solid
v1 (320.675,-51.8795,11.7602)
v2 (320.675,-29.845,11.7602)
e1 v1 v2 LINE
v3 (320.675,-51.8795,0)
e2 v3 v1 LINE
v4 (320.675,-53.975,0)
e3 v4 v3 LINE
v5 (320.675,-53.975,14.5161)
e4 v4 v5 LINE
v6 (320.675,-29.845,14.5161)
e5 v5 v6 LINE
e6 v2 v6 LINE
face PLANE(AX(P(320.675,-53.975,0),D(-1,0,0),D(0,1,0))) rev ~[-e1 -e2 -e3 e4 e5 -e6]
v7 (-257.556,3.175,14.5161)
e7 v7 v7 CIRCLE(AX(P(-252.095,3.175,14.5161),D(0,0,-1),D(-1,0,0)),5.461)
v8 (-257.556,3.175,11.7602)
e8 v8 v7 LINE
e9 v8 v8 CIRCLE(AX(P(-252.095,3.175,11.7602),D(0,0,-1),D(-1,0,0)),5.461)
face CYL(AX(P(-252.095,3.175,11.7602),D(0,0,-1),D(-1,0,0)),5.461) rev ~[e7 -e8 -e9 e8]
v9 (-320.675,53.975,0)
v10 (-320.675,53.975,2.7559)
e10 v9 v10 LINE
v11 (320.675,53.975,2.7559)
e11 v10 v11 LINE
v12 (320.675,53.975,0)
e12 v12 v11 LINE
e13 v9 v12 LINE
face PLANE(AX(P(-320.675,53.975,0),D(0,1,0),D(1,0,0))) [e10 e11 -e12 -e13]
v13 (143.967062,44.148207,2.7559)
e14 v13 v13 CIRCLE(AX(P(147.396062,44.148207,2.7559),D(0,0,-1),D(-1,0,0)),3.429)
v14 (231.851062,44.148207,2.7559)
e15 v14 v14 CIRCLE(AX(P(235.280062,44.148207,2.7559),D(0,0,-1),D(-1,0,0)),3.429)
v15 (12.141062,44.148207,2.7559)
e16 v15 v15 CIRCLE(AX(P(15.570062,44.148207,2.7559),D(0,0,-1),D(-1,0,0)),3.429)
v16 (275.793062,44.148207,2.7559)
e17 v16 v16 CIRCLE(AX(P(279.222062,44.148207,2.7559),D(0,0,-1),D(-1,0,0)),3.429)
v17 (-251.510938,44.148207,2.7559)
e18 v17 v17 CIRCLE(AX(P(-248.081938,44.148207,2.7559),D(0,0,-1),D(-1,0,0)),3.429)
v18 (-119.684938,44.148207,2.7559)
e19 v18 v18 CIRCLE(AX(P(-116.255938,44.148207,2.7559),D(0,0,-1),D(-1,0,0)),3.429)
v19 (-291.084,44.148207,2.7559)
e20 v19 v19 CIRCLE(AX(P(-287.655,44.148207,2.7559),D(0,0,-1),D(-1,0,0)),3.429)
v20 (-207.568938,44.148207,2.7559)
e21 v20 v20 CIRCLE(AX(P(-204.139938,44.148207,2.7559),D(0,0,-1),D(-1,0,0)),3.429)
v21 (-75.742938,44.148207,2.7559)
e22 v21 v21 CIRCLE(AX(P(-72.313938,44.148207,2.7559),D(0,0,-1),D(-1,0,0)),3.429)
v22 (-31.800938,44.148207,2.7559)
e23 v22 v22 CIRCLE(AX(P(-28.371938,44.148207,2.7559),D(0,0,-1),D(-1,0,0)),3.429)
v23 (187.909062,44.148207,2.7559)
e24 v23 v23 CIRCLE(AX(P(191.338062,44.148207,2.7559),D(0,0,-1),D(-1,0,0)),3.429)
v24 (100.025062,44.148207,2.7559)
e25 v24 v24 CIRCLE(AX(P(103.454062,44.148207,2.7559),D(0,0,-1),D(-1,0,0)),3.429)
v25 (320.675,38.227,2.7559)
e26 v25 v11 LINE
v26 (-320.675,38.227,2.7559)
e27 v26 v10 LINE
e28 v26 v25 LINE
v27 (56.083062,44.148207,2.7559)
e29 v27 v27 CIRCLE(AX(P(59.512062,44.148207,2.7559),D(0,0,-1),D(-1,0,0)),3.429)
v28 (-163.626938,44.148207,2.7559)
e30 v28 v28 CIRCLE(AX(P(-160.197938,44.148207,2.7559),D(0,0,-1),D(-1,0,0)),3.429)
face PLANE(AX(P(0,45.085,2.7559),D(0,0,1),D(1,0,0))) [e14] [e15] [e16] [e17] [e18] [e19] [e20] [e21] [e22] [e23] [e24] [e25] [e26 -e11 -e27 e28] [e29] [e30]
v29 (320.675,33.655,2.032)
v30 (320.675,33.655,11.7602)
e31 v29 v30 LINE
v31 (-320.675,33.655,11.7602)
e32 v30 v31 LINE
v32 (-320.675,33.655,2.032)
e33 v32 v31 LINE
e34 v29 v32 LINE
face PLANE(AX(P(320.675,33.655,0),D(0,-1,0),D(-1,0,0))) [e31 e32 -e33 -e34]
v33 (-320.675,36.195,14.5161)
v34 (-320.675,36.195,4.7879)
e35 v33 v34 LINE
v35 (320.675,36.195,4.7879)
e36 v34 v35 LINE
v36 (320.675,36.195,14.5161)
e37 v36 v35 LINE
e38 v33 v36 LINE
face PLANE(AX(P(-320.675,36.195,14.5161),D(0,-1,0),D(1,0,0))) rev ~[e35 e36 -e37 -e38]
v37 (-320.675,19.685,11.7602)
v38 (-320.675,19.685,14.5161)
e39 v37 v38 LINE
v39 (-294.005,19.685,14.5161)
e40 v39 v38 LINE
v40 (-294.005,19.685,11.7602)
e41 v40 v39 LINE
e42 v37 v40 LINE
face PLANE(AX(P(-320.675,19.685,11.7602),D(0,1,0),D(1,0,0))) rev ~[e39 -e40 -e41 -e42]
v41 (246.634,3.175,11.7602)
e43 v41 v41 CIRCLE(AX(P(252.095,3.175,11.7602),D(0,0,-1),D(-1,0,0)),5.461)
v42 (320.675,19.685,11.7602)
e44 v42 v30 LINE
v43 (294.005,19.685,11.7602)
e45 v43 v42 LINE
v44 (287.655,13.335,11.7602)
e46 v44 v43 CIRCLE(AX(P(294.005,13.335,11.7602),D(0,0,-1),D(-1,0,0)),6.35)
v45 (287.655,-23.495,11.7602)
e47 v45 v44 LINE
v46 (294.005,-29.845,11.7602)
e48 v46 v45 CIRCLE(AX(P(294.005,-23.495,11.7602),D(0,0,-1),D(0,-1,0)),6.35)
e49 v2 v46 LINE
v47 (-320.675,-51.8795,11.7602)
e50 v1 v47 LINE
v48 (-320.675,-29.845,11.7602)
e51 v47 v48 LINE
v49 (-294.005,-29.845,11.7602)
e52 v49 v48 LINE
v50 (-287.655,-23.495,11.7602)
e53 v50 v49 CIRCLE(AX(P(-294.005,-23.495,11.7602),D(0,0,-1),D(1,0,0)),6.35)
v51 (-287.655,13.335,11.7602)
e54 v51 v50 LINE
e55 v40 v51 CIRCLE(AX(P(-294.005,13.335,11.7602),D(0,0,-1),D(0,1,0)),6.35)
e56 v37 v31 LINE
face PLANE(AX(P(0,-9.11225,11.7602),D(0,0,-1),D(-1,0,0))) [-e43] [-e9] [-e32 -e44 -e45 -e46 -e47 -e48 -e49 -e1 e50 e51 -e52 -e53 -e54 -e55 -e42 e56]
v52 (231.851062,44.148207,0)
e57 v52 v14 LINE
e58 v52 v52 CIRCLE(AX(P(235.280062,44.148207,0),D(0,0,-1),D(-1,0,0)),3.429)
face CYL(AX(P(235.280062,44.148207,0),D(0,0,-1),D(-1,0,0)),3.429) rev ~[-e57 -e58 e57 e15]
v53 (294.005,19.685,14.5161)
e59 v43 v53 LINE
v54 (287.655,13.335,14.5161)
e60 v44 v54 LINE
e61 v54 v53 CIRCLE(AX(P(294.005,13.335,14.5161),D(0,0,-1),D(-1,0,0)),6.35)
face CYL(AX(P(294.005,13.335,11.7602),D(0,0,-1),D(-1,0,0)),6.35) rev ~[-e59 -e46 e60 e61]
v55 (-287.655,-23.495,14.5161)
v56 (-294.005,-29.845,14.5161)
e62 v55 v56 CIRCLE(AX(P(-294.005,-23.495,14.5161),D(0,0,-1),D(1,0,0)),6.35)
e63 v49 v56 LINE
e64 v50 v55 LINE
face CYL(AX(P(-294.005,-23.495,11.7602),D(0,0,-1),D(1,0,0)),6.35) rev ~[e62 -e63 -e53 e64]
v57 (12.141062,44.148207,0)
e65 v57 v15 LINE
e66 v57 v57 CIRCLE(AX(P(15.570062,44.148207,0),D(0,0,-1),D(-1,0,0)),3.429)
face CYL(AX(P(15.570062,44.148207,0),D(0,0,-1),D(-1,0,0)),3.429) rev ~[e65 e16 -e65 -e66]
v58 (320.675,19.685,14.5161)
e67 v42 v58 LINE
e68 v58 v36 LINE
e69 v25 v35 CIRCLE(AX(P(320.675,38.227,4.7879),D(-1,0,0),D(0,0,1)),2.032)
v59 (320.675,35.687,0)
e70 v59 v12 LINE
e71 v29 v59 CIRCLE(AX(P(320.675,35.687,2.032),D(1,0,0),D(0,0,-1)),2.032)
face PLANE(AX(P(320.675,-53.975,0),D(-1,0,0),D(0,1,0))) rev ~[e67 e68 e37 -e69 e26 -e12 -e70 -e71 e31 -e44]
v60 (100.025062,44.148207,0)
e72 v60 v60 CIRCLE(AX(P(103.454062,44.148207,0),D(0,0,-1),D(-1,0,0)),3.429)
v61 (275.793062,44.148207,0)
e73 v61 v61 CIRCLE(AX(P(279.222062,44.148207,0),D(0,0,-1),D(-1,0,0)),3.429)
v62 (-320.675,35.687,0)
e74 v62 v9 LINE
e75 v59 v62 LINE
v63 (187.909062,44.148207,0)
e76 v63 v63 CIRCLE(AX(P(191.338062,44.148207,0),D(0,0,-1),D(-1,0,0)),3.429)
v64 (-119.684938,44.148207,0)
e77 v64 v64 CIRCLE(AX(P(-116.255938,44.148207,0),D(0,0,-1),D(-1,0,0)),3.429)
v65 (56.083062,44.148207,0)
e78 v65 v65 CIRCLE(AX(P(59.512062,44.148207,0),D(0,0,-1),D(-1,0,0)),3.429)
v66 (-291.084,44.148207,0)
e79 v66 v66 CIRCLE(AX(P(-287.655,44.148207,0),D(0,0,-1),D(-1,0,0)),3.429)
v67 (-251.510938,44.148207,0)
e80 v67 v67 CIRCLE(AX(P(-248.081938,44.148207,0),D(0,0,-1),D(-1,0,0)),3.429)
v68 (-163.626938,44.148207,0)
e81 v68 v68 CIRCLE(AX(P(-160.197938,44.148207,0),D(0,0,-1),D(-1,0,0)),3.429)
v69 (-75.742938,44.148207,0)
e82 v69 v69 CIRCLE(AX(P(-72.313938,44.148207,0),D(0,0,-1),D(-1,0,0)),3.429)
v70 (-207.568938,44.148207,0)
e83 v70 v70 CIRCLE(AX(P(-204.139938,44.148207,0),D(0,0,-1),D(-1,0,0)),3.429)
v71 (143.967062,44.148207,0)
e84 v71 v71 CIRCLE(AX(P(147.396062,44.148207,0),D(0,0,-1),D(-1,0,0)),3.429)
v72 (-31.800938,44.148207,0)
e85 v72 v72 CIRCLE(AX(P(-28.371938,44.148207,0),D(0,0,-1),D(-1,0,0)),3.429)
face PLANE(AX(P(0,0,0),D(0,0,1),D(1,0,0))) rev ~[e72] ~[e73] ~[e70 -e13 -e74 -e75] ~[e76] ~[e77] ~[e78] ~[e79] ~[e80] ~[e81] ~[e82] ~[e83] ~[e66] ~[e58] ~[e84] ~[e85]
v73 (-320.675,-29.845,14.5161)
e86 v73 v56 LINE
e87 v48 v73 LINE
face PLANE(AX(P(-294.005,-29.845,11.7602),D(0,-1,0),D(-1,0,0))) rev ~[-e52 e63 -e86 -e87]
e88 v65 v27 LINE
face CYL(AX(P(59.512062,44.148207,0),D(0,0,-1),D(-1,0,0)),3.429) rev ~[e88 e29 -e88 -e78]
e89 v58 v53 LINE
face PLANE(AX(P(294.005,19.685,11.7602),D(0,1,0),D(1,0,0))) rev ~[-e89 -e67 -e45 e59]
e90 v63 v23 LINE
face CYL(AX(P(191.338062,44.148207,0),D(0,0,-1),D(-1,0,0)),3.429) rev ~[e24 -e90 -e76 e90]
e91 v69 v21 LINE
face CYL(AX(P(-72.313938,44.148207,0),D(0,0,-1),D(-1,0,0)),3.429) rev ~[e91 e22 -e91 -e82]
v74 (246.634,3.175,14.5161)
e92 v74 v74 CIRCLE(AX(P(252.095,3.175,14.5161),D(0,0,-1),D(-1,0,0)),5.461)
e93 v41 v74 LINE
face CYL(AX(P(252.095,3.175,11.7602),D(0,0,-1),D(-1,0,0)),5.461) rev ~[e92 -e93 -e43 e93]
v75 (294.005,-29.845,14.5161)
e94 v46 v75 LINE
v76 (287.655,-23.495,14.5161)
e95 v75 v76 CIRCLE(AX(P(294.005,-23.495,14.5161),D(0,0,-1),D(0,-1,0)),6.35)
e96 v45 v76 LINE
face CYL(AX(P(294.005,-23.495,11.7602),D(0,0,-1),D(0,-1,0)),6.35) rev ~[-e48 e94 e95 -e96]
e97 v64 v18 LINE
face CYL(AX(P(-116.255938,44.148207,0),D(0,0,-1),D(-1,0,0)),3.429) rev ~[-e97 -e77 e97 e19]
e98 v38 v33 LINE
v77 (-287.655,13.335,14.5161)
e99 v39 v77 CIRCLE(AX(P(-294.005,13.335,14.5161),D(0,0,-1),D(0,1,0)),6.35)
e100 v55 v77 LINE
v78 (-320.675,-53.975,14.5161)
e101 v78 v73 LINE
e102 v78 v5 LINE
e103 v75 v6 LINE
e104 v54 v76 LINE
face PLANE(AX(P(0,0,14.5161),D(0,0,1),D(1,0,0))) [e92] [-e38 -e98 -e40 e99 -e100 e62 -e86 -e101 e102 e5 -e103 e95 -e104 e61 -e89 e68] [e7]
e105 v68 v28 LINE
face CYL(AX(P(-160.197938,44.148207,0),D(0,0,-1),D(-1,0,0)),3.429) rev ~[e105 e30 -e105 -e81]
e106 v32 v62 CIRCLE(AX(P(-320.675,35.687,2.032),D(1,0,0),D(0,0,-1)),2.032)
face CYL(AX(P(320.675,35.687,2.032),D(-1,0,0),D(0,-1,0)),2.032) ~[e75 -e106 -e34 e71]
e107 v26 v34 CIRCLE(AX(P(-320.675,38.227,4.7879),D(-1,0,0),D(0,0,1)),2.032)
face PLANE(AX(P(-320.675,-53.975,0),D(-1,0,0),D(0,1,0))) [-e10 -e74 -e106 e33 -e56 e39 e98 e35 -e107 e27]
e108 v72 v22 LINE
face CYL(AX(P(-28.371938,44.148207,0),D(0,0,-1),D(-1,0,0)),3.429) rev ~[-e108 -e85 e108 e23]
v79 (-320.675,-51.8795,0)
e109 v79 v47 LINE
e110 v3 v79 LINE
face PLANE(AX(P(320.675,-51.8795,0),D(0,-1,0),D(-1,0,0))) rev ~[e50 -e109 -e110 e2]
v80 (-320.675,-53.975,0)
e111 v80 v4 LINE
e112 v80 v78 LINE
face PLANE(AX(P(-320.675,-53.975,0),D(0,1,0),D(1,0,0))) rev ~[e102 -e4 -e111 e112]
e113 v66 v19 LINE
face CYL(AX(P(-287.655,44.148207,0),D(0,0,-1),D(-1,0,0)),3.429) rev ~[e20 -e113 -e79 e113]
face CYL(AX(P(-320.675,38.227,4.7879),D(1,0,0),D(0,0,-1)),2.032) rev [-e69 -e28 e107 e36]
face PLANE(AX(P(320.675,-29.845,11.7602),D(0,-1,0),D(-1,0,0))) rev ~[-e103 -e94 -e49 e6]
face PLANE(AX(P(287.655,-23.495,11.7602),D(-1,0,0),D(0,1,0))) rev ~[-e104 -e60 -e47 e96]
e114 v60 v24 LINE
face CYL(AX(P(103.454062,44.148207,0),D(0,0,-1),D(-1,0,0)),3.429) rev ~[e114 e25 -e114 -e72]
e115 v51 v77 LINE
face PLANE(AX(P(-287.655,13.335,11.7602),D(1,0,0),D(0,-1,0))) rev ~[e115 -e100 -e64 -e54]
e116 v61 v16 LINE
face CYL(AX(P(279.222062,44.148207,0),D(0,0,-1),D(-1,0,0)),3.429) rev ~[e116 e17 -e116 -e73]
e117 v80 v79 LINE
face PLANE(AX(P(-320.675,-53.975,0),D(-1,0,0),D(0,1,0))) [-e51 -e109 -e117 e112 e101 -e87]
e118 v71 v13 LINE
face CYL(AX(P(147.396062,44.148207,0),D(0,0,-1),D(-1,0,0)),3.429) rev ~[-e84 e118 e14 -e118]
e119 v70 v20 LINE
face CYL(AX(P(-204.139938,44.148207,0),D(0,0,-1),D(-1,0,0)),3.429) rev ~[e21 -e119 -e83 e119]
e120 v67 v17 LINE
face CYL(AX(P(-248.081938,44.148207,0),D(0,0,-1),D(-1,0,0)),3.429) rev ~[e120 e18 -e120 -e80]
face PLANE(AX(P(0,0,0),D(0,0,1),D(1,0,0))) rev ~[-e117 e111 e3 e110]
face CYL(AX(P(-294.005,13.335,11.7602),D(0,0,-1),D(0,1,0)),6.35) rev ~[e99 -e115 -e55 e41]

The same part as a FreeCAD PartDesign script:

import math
import FreeCAD as App
import Part
import Sketcher

V = App.Vector
Q = App.Units.Quantity


def edges_at(feature, points):
    """Names of the edges that pass closest to the given points."""
    edges = feature.Shape.Edges
    near = lambda p: min(range(len(edges)), key=lambda i: edges[i].distToShape(Part.Vertex(*p))[0])
    return sorted({f"Edge{near(p) + 1}" for p in points})


def add_polygon(sketch, points):
    """Adds a closed chain of lines whose ends are joined by coincident constraints."""
    first, n = sketch.GeometryCount, len(points)
    for a, b in zip(points, points[1:] + points[:1]):
        sketch.addGeometry(Part.LineSegment(App.Vector(*a, 0), App.Vector(*b, 0)), False)
    for i in range(n):
        sketch.addConstraint(Sketcher.Constraint("Coincident", first + i, 2, first + (i + 1) % n, 1))

doc = App.newDocument("Part")
params = doc.addObject("Spreadsheet::Sheet", "Params")
for row, (alias, value) in enumerate([
    ("sketch1_width", "25.25 in"),
    ("sketch1_height", "4.25 in"),
    ("pad1_length", "0.5715 in"),
    ("sketch2_height", "0.7 in"),
    ("sketch2_width", "25.25 in"),
    ("pocket1_length", "0.463 in"),
    ("sketch3_width", "25.25 in"),
    ("pocket2_length", "0.463 in"),
    ("fillet_radius", "0.08 in"),
    ("sketch4_radius", "0.25 in"),
    ("sketch4_width", "1.05 in"),
    ("sketch4_height", "1.95 in"),
    ("sketch5_diameter", "0.27 in"),
    ("pocket4_length", "0.463 in"),
    ("sketch6_diameter", "0.43 in"),
    ("pocket5_length", "0.463 in"),
], start=1):
    params.set(f"A{row}", alias)
    params.set(f"B{row}", "=" + value)
    params.setAlias(f"B{row}", alias)

body = doc.addObject("PartDesign::Body", "Body")

# Sketch on XY plane
sketch1 = body.newObject("Sketcher::SketchObject", "Sketch")
sketch1.AttachmentSupport = (doc.getObject("XY_Plane"), [""])
sketch1.MapMode = "FlatFace"
add_polygon(sketch1, [(-321, 54), (-321, -54), (321, -54), (321, 54)])  # lines 0-3
sketch1.addConstraint([
    Sketcher.Constraint("Vertical", 0),
    Sketcher.Constraint("Horizontal", 1),
    Sketcher.Constraint("Vertical", 2),
    Sketcher.Constraint("Horizontal", 3),
    Sketcher.Constraint("Symmetric", 0, 2, 2, 2, -1, 1),
    Sketcher.Constraint("DistanceX", 1, 1, 1, 2, Q("25.25 in")),
    Sketcher.Constraint("DistanceY", 0, 2, 0, 1, Q("4.25 in")),
])
sketch1.setExpression("Constraints[9]", "Params.sketch1_width")
sketch1.setExpression("Constraints[10]", "Params.sketch1_height")
pad1 = body.newObject("PartDesign::Pad", "Pad")
pad1.Profile = sketch1
pad1.setExpression("Length", "Params.pad1_length")

# Sketch on XY plane
sketch2 = body.newObject("Sketcher::SketchObject", "Sketch001")
sketch2.AttachmentSupport = (doc.getObject("XY_Plane"), [""])
sketch2.MapMode = "FlatFace"
sketch2.AttachmentOffset = App.Placement(V(0, 0, 0.5715 * 25.4), App.Rotation())
add_polygon(sketch2, [(-321, 54), (-321, 36), (321, 36), (321, 54)])  # lines 0-3
sketch2.addConstraint([
    Sketcher.Constraint("Vertical", 0),
    Sketcher.Constraint("Horizontal", 1),
    Sketcher.Constraint("Vertical", 2),
    Sketcher.Constraint("Horizontal", 3),
    Sketcher.Constraint("DistanceY", 0, 2, 0, 1, Q("0.7 in")),
    Sketcher.Constraint("DistanceX", 1, 1, 1, 2, Q("25.25 in")),
    Sketcher.Constraint("DistanceX", 0, 2, -1, 1, Q("12.625 in")),
    Sketcher.Constraint("DistanceY", -1, 1, 0, 2, Q("1.425 in")),
])
sketch2.setExpression("Constraints[8]", "Params.sketch2_height")
sketch2.setExpression("Constraints[9]", "Params.sketch2_width")
pocket1 = body.newObject("PartDesign::Pocket", "Pocket")
pocket1.Profile = sketch2
pocket1.setExpression("Length", "Params.pocket1_length")

# Sketch on XY plane
sketch3 = body.newObject("Sketcher::SketchObject", "Sketch002")
sketch3.AttachmentSupport = (doc.getObject("XY_Plane"), [""])
sketch3.MapMode = "FlatFace"
add_polygon(sketch3, [(321, 34), (321, -52), (-321, -52), (-321, 34)])  # lines 0-3
sketch3.addConstraint([
    Sketcher.Constraint("Vertical", 0),
    Sketcher.Constraint("Horizontal", 1),
    Sketcher.Constraint("Vertical", 2),
    Sketcher.Constraint("Horizontal", 3),
    Sketcher.Constraint("DistanceX", 1, 2, 1, 1, Q("25.25 in")),
    Sketcher.Constraint("DistanceY", 0, 2, 0, 1, Q("3.3675 in")),
    Sketcher.Constraint("DistanceX", -1, 1, 0, 2, Q("12.625 in")),
    Sketcher.Constraint("DistanceY", -1, 1, 2, 2, Q("1.325 in")),
])
sketch3.setExpression("Constraints[8]", "Params.sketch3_width")
pocket2 = body.newObject("PartDesign::Pocket", "Pocket001")
pocket2.Profile = sketch3
pocket2.setExpression("Length", "Params.pocket2_length")
pocket2.Reversed = True
doc.recompute()

fillet = body.newObject("PartDesign::Fillet", "Fillet")
fillet.Base = (pocket2, edges_at(pocket2, [(0, 36.195, 2.756), (0, 33.655, 0)]))
fillet.setExpression("Radius", "Params.fillet_radius")

# Sketch on XY plane
sketch4 = body.newObject("Sketcher::SketchObject", "Sketch003")
sketch4.AttachmentSupport = (doc.getObject("XY_Plane"), [""])
sketch4.MapMode = "FlatFace"
sketch4.AttachmentOffset = App.Placement(V(0, 0, 0.463 * 25.4), App.Rotation())
sketch4.addGeometry([
    Part.LineSegment(V(294, 20, 0), V(321, 20, 0)),  # 0
    Part.LineSegment(V(321, 20, 0), V(321, -30, 0)),  # 1
    Part.LineSegment(V(321, -30, 0), V(294, -30, 0)),  # 2
    Part.ArcOfCircle(Part.Circle(V(294, -23, 0), V(0, 0, 1), 6), math.radians(180), math.radians(270)),  # 3
    Part.LineSegment(V(288, -23, 0), V(288, 13, 0)),  # 4
    Part.ArcOfCircle(Part.Circle(V(294, 13, 0), V(0, 0, 1), 6), math.radians(90), math.radians(180)),  # 5
    Part.LineSegment(V(-294, -30, 0), V(-321, -30, 0)),  # 6
    Part.LineSegment(V(-321, -30, 0), V(-321, 20, 0)),  # 7
    Part.LineSegment(V(-321, 20, 0), V(-294, 20, 0)),  # 8
    Part.ArcOfCircle(Part.Circle(V(-294, 13, 0), V(0, 0, 1), 6), math.radians(0), math.radians(90)),  # 9
    Part.LineSegment(V(-288, 13, 0), V(-288, -23, 0)),  # 10
    Part.ArcOfCircle(Part.Circle(V(-294, -23, 0), V(0, 0, 1), 6), math.radians(-90), math.radians(0)),  # 11
], False)
sketch4.addConstraint([
    Sketcher.Constraint("Coincident", 0, 2, 1, 1),
    Sketcher.Constraint("Coincident", 1, 2, 2, 1),
    Sketcher.Constraint("Tangent", 2, 2, 3, 2),
    Sketcher.Constraint("Tangent", 3, 1, 4, 1),
    Sketcher.Constraint("Tangent", 4, 2, 5, 2),
    Sketcher.Constraint("Tangent", 5, 1, 0, 1),
    Sketcher.Constraint("Coincident", 6, 2, 7, 1),
    Sketcher.Constraint("Coincident", 7, 2, 8, 1),
    Sketcher.Constraint("Tangent", 8, 2, 9, 2),
    Sketcher.Constraint("Tangent", 9, 1, 10, 1),
    Sketcher.Constraint("Tangent", 10, 2, 11, 2),
    Sketcher.Constraint("Tangent", 11, 1, 6, 1),
    Sketcher.Constraint("Horizontal", 0),
    Sketcher.Constraint("Vertical", 1),
    Sketcher.Constraint("Horizontal", 2),
    Sketcher.Constraint("Vertical", 4),
    Sketcher.Constraint("Horizontal", 6),
    Sketcher.Constraint("Vertical", 7),
    Sketcher.Constraint("Horizontal", 8),
    Sketcher.Constraint("Vertical", 10),
    Sketcher.Constraint("Equal", 3, 5),
    Sketcher.Constraint("Equal", 5, 9),
    Sketcher.Constraint("Equal", 9, 11),
    Sketcher.Constraint("Symmetric", 5, 3, 9, 3, -2),
    Sketcher.Constraint("Symmetric", 1, 2, 6, 2, -2),
    Sketcher.Constraint("Radius", 3, Q("0.25 in")),
    Sketcher.Constraint("DistanceX", 0, 1, 0, 2, Q("1.05 in")),
    Sketcher.Constraint("DistanceY", 1, 2, 1, 1, Q("1.95 in")),
    Sketcher.Constraint("DistanceX", 9, 3, 0, 2, Q("24.2 in")),
    Sketcher.Constraint("DistanceY", 3, 3, -1, 1, Q("0.925 in")),
])
sketch4.setExpression("Constraints[25]", "Params.sketch4_radius")
sketch4.setExpression("Constraints[26]", "Params.sketch4_width")
sketch4.setExpression("Constraints[27]", "Params.sketch4_height")
pocket3 = body.newObject("PartDesign::Pocket", "Pocket002")
pocket3.Profile = sketch4
pocket3.Type = "ThroughAll"
pocket3.Reversed = True

# Sketch on XY plane
sketch5 = body.newObject("Sketcher::SketchObject", "Sketch004")
sketch5.AttachmentSupport = (doc.getObject("XY_Plane"), [""])
sketch5.MapMode = "FlatFace"
sketch5.addGeometry([
    Part.Circle(V(279.2, 44.1, 0), V(0, 0, 1), 3.4),  # 0
    Part.Circle(V(235.3, 44.1, 0), V(0, 0, 1), 3.4),  # 1
    Part.Circle(V(191.3, 44.1, 0), V(0, 0, 1), 3.4),  # 2
    Part.Circle(V(147.4, 44.1, 0), V(0, 0, 1), 3.4),  # 3
    Part.Circle(V(103.5, 44.1, 0), V(0, 0, 1), 3.4),  # 4
    Part.Circle(V(59.5, 44.1, 0), V(0, 0, 1), 3.4),  # 5
    Part.Circle(V(15.6, 44.1, 0), V(0, 0, 1), 3.4),  # 6
    Part.Circle(V(-28.4, 44.1, 0), V(0, 0, 1), 3.4),  # 7
    Part.Circle(V(-72.3, 44.1, 0), V(0, 0, 1), 3.4),  # 8
    Part.Circle(V(-116.3, 44.1, 0), V(0, 0, 1), 3.4),  # 9
    Part.Circle(V(-160.2, 44.1, 0), V(0, 0, 1), 3.4),  # 10
    Part.Circle(V(-204.1, 44.1, 0), V(0, 0, 1), 3.4),  # 11
    Part.Circle(V(-248.1, 44.1, 0), V(0, 0, 1), 3.4),  # 12
    Part.Circle(V(-287.7, 44.1, 0), V(0, 0, 1), 3.4),  # 13
], False)
sketch5.addConstraint([
    Sketcher.Constraint("Equal", 0, 1),
    Sketcher.Constraint("Equal", 1, 2),
    Sketcher.Constraint("Equal", 2, 3),
    Sketcher.Constraint("Equal", 3, 4),
    Sketcher.Constraint("Equal", 4, 5),
    Sketcher.Constraint("Equal", 5, 6),
    Sketcher.Constraint("Equal", 6, 7),
    Sketcher.Constraint("Equal", 7, 8),
    Sketcher.Constraint("Equal", 8, 9),
    Sketcher.Constraint("Equal", 9, 10),
    Sketcher.Constraint("Equal", 10, 11),
    Sketcher.Constraint("Equal", 11, 12),
    Sketcher.Constraint("Equal", 12, 13),
    Sketcher.Constraint("Horizontal", 0, 3, 1, 3),
    Sketcher.Constraint("Horizontal", 1, 3, 2, 3),
    Sketcher.Constraint("Horizontal", 2, 3, 3, 3),
    Sketcher.Constraint("Horizontal", 3, 3, 4, 3),
    Sketcher.Constraint("Horizontal", 4, 3, 5, 3),
    Sketcher.Constraint("Horizontal", 5, 3, 6, 3),
    Sketcher.Constraint("Horizontal", 6, 3, 7, 3),
    Sketcher.Constraint("Horizontal", 7, 3, 8, 3),
    Sketcher.Constraint("Horizontal", 8, 3, 9, 3),
    Sketcher.Constraint("Horizontal", 9, 3, 10, 3),
    Sketcher.Constraint("Horizontal", 10, 3, 11, 3),
    Sketcher.Constraint("Horizontal", 11, 3, 12, 3),
    Sketcher.Constraint("Horizontal", 12, 3, 13, 3),
    Sketcher.Constraint("Diameter", 0, Q("0.27 in")),
    Sketcher.Constraint("DistanceX", 1, 3, 0, 3, Q("1.73 in")),
    Sketcher.Constraint("DistanceX", 2, 3, 1, 3, Q("1.73 in")),
    Sketcher.Constraint("DistanceX", 3, 3, 2, 3, Q("1.73 in")),
    Sketcher.Constraint("DistanceX", 4, 3, 3, 3, Q("1.73 in")),
    Sketcher.Constraint("DistanceX", 5, 3, 4, 3, Q("1.73 in")),
    Sketcher.Constraint("DistanceX", 6, 3, 5, 3, Q("1.73 in")),
    Sketcher.Constraint("DistanceX", 7, 3, 6, 3, Q("1.73 in")),
    Sketcher.Constraint("DistanceX", 8, 3, 7, 3, Q("1.73 in")),
    Sketcher.Constraint("DistanceX", 9, 3, 8, 3, Q("1.73 in")),
    Sketcher.Constraint("DistanceX", 10, 3, 9, 3, Q("1.73 in")),
    Sketcher.Constraint("DistanceX", 11, 3, 10, 3, Q("1.73 in")),
    Sketcher.Constraint("DistanceX", 12, 3, 11, 3, Q("1.73 in")),
    Sketcher.Constraint("DistanceX", 13, 3, -1, 1, Q("11.325 in")),
    Sketcher.Constraint("DistanceX", -1, 1, 0, 3, Q("279.222062 mm")),
    Sketcher.Constraint("DistanceY", -1, 1, 0, 3, Q("44.148207 mm")),
])
sketch5.setExpression("Constraints[26]", "Params.sketch5_diameter")
pocket4 = body.newObject("PartDesign::Pocket", "Pocket003")
pocket4.Profile = sketch5
pocket4.setExpression("Length", "Params.pocket4_length")
pocket4.Reversed = True

# Sketch on XY plane
sketch6 = body.newObject("Sketcher::SketchObject", "Sketch005")
sketch6.AttachmentSupport = (doc.getObject("XY_Plane"), [""])
sketch6.MapMode = "FlatFace"
sketch6.AttachmentOffset = App.Placement(V(0, 0, 0.463 * 25.4), App.Rotation())
sketch6.addGeometry([
    Part.Circle(V(252, 3, 0), V(0, 0, 1), 5),
    Part.Circle(V(-252, 3, 0), V(0, 0, 1), 5),
], False)
sketch6.addConstraint([
    Sketcher.Constraint("Equal", 0, 1),
    Sketcher.Constraint("Symmetric", 0, 3, 1, 3, -2),
    Sketcher.Constraint("Diameter", 0, Q("0.43 in")),
    Sketcher.Constraint("DistanceX", 1, 3, 0, 3, Q("19.85 in")),
    Sketcher.Constraint("DistanceY", -1, 1, 0, 3, Q("0.125 in")),
])
sketch6.setExpression("Constraints[2]", "Params.sketch6_diameter")
pocket5 = body.newObject("PartDesign::Pocket", "Pocket004")
pocket5.Profile = sketch6
pocket5.setExpression("Length", "Params.pocket5_length")
pocket5.Reversed = True

doc.recompute()
